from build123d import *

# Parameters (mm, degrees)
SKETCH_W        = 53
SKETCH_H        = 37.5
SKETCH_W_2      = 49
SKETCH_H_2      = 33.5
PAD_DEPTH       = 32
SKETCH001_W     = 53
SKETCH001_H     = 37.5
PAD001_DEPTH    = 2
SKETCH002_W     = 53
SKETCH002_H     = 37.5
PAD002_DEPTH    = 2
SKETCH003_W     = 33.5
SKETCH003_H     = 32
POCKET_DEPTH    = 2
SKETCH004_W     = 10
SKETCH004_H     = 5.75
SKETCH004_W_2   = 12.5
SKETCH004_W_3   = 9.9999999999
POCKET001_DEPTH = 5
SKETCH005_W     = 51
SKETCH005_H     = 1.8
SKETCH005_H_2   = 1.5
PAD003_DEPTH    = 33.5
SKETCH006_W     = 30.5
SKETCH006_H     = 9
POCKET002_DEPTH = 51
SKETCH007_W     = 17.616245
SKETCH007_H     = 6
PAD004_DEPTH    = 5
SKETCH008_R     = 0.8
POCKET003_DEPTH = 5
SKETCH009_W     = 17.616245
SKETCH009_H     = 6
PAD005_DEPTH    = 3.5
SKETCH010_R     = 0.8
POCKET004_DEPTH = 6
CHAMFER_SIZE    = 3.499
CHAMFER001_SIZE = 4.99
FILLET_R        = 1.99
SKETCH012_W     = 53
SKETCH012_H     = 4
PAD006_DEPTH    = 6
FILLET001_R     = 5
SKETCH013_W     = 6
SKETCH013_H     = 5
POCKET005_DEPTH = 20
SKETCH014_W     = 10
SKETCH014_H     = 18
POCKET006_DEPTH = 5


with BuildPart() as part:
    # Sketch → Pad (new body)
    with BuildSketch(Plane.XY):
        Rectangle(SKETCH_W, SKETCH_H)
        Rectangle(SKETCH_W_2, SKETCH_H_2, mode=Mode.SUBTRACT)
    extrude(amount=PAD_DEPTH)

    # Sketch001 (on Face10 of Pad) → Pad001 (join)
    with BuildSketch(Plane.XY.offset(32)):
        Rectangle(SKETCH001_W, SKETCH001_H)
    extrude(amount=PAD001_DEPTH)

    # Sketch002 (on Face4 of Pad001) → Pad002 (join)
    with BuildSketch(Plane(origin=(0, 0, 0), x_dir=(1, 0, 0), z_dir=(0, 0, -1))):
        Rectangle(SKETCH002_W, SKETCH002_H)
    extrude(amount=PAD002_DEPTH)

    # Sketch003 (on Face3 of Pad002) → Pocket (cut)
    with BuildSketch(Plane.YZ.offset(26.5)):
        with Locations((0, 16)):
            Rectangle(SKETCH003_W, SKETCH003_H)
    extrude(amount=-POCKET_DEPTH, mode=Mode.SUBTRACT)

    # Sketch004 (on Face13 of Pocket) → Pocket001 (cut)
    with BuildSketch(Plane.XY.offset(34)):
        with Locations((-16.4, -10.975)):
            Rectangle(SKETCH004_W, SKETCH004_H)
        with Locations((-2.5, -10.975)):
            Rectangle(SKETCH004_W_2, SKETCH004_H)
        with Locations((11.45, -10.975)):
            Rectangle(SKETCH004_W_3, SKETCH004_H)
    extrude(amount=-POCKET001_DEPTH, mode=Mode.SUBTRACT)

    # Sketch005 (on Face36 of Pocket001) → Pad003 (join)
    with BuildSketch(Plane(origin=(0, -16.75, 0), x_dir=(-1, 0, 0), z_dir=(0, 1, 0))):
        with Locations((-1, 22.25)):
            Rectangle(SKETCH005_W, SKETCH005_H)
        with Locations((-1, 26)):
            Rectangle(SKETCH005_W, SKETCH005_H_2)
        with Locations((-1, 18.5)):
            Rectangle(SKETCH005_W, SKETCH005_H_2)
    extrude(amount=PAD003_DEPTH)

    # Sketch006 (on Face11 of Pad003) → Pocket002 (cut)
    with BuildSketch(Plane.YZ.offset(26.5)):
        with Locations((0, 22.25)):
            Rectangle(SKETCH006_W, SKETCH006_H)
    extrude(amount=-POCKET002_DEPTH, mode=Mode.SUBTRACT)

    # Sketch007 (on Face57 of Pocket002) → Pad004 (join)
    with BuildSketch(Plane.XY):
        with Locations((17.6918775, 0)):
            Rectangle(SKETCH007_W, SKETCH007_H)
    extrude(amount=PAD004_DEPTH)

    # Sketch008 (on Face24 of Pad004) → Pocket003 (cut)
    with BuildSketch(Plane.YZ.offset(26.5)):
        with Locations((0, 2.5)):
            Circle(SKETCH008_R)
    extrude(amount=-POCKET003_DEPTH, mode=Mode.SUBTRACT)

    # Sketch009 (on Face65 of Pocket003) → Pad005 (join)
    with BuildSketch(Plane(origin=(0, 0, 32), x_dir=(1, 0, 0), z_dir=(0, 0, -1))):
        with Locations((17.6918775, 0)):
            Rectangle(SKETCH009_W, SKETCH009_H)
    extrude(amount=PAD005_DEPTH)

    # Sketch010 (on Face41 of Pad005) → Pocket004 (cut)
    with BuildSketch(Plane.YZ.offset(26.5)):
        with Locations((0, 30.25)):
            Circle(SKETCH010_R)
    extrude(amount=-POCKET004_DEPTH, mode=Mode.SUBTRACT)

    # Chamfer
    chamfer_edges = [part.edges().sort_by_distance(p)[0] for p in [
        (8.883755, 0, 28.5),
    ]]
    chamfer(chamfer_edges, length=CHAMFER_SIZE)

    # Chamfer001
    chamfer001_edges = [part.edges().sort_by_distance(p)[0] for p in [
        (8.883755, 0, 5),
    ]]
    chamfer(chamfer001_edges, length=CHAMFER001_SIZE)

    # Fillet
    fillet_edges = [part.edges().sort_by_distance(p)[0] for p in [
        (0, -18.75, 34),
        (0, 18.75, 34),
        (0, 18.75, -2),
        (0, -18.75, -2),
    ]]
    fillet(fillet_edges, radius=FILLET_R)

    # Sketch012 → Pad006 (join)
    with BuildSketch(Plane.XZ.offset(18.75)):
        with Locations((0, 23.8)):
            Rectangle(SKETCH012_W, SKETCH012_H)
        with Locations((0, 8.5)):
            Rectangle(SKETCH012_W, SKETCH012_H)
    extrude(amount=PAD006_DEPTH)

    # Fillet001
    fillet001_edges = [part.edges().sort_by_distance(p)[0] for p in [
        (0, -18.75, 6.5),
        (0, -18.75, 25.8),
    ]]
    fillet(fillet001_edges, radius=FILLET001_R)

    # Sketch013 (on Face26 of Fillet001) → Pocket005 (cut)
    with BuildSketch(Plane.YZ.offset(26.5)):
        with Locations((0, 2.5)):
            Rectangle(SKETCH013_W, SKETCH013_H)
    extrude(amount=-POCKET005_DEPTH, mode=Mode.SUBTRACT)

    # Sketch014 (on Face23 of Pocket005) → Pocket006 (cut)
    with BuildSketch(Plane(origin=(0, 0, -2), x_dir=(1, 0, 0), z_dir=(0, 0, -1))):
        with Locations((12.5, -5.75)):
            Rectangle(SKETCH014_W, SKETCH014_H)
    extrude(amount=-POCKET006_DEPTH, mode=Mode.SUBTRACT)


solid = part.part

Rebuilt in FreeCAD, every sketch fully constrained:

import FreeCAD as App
import Part
import Sketcher
from FreeCAD import Vector


def edges_at(feature, points):
    """Names of the edges that pass closest to the given points."""
    edges = feature.Shape.Edges
    near = lambda p: min(range(len(edges)), key=lambda i: edges[i].distToShape(Part.Vertex(*p))[0])
    return sorted({f"Edge{near(p) + 1}" for p in points})

doc = App.newDocument("Part")
body = doc.addObject("PartDesign::Body", "Body")

# Sketch on XY plane
sketch1 = body.newObject("Sketcher::SketchObject", "Sketch")
sketch1.AttachmentSupport = (doc.getObject("XY_Plane"), [""])
sketch1.MapMode = "FlatFace"
sketch1.addGeometry([
    Part.LineSegment(Vector(-26, 19, 0), Vector(-26, -19, 0)),  # 0
    Part.LineSegment(Vector(-26, -19, 0), Vector(26, -19, 0)),  # 1
    Part.LineSegment(Vector(26, -19, 0), Vector(26, 19, 0)),  # 2
    Part.LineSegment(Vector(26, 19, 0), Vector(-26, 19, 0)),  # 3
    Part.LineSegment(Vector(24, -17, 0), Vector(-24, -17, 0)),  # 4
    Part.LineSegment(Vector(-24, -17, 0), Vector(-24, 17, 0)),  # 5
    Part.LineSegment(Vector(-24, 17, 0), Vector(24, 17, 0)),  # 6
    Part.LineSegment(Vector(24, 17, 0), Vector(24, -17, 0)),  # 7
], False)
sketch1.addConstraint([
    Sketcher.Constraint("Coincident", 0, 2, 1, 1),
    Sketcher.Constraint("Coincident", 1, 2, 2, 1),
    Sketcher.Constraint("Coincident", 2, 2, 3, 1),
    Sketcher.Constraint("Coincident", 3, 2, 0, 1),
    Sketcher.Constraint("Coincident", 4, 2, 5, 1),
    Sketcher.Constraint("Coincident", 5, 2, 6, 1),
    Sketcher.Constraint("Coincident", 6, 2, 7, 1),
    Sketcher.Constraint("Coincident", 7, 2, 4, 1),
    Sketcher.Constraint("Vertical", 0),
    Sketcher.Constraint("Horizontal", 1),
    Sketcher.Constraint("Vertical", 2),
    Sketcher.Constraint("Horizontal", 3),
    Sketcher.Constraint("Horizontal", 4),
    Sketcher.Constraint("Vertical", 5),
    Sketcher.Constraint("Horizontal", 6),
    Sketcher.Constraint("Vertical", 7),
    Sketcher.Constraint("Symmetric", 0, 2, 2, 2, -1, 1),
    Sketcher.Constraint("Symmetric", 4, 2, 6, 2, -1, 1),
    Sketcher.Constraint("DistanceX", 1, 1, 1, 2, 53.0),
    Sketcher.Constraint("DistanceX", 4, 2, 4, 1, 49.0),
    Sketcher.Constraint("DistanceY", 0, 2, 0, 1, 37.5),
    Sketcher.Constraint("DistanceY", 5, 1, 5, 2, 33.5),
])
pad1 = body.newObject("PartDesign::Pad", "Pad")
pad1.Profile = sketch1
pad1.Length = 32

# Sketch on XY plane
sketch2 = body.newObject("Sketcher::SketchObject", "Sketch001")
sketch2.AttachmentSupport = (doc.getObject("XY_Plane"), [""])
sketch2.MapMode = "FlatFace"
sketch2.AttachmentOffset = App.Placement(Vector(0, 0, 32), App.Rotation())
sketch2.addGeometry([
    Part.LineSegment(Vector(-26, 19, 0), Vector(-26, -19, 0)),
    Part.LineSegment(Vector(-26, -19, 0), Vector(26, -19, 0)),
    Part.LineSegment(Vector(26, -19, 0), Vector(26, 19, 0)),
    Part.LineSegment(Vector(26, 19, 0), Vector(-26, 19, 0)),
], False)
sketch2.addConstraint([
    Sketcher.Constraint("Coincident", 0, 2, 1, 1),
    Sketcher.Constraint("Coincident", 1, 2, 2, 1),
    Sketcher.Constraint("Coincident", 2, 2, 3, 1),
    Sketcher.Constraint("Coincident", 3, 2, 0, 1),
    Sketcher.Constraint("Vertical", 0),
    Sketcher.Constraint("Horizontal", 1),
    Sketcher.Constraint("Vertical", 2),
    Sketcher.Constraint("Horizontal", 3),
    Sketcher.Constraint("Symmetric", 0, 2, 2, 2, -1, 1),
    Sketcher.Constraint("DistanceX", 1, 1, 1, 2, 53.0),
    Sketcher.Constraint("DistanceY", 0, 2, 0, 1, 37.5),
])
pad2 = body.newObject("PartDesign::Pad", "Pad001")
pad2.Profile = sketch2
pad2.Length = 2

# Sketch on XY plane
sketch3 = body.newObject("Sketcher::SketchObject", "Sketch002")
sketch3.AttachmentSupport = (doc.getObject("XY_Plane"), [""])
sketch3.MapMode = "FlatFace"
sketch3.addGeometry([
    Part.LineSegment(Vector(-26, -19, 0), Vector(-26, 19, 0)),
    Part.LineSegment(Vector(-26, 19, 0), Vector(26, 19, 0)),
    Part.LineSegment(Vector(26, 19, 0), Vector(26, -19, 0)),
    Part.LineSegment(Vector(26, -19, 0), Vector(-26, -19, 0)),
], False)
sketch3.addConstraint([
    Sketcher.Constraint("Coincident", 0, 2, 1, 1),
    Sketcher.Constraint("Coincident", 1, 2, 2, 1),
    Sketcher.Constraint("Coincident", 2, 2, 3, 1),
    Sketcher.Constraint("Coincident", 3, 2, 0, 1),
    Sketcher.Constraint("Vertical", 0),
    Sketcher.Constraint("Horizontal", 1),
    Sketcher.Constraint("Vertical", 2),
    Sketcher.Constraint("Horizontal", 3),
    Sketcher.Constraint("Symmetric", 0, 2, 2, 2, -1, 1),
    Sketcher.Constraint("DistanceX", 1, 1, 1, 2, 53.0),
    Sketcher.Constraint("DistanceY", 0, 1, 0, 2, 37.5),
])
pad3 = body.newObject("PartDesign::Pad", "Pad002")
pad3.Profile = sketch3
pad3.Length = 2
pad3.Reversed = True

# Sketch on YZ plane
sketch4 = body.newObject("Sketcher::SketchObject", "Sketch003")
sketch4.AttachmentSupport = (doc.getObject("YZ_Plane"), [""])
sketch4.MapMode = "FlatFace"
sketch4.AttachmentOffset = App.Placement(Vector(0, 0, 26.5), App.Rotation())
sketch4.addGeometry([
    Part.LineSegment(Vector(-17, 32, 0), Vector(-17, 0, 0)),
    Part.LineSegment(Vector(-17, 0, 0), Vector(17, 0, 0)),
    Part.LineSegment(Vector(17, 0, 0), Vector(17, 32, 0)),
    Part.LineSegment(Vector(17, 32, 0), Vector(-17, 32, 0)),
], False)
sketch4.addConstraint([
    Sketcher.Constraint("Coincident", 0, 2, 1, 1),
    Sketcher.Constraint("Coincident", 1, 2, 2, 1),
    Sketcher.Constraint("Coincident", 2, 2, 3, 1),
    Sketcher.Constraint("Coincident", 3, 2, 0, 1),
    Sketcher.Constraint("Vertical", 0),
    Sketcher.Constraint("Horizontal", 1),
    Sketcher.Constraint("Vertical", 2),
    Sketcher.Constraint("Horizontal", 3),
    Sketcher.Constraint("Symmetric", 0, 2, 1, 2, -1, 1),
    Sketcher.Constraint("DistanceY", 0, 2, 0, 1, 32.0),
    Sketcher.Constraint("DistanceX", 1, 1, 1, 2, 33.5),
])
pocket1 = body.newObject("PartDesign::Pocket", "Pocket")
pocket1.Profile = sketch4
pocket1.Length = 2

# Sketch on XY plane
sketch5 = body.newObject("Sketcher::SketchObject", "Sketch004")
sketch5.AttachmentSupport = (doc.getObject("XY_Plane"), [""])
sketch5.MapMode = "FlatFace"
sketch5.AttachmentOffset = App.Placement(Vector(0, 0, 34), App.Rotation())
sketch5.addGeometry([
    Part.LineSegment(Vector(-21, -8, 0), Vector(-21, -14, 0)),  # 0
    Part.LineSegment(Vector(-21, -14, 0), Vector(-11, -14, 0)),  # 1
    Part.LineSegment(Vector(-11, -14, 0), Vector(-11, -8, 0)),  # 2
    Part.LineSegment(Vector(-11, -8, 0), Vector(-21, -8, 0)),  # 3
    Part.LineSegment(Vector(-9, -8, 0), Vector(-9, -14, 0)),  # 4
    Part.LineSegment(Vector(-9, -14, 0), Vector(4, -14, 0)),  # 5
    Part.LineSegment(Vector(4, -14, 0), Vector(4, -8, 0)),  # 6
    Part.LineSegment(Vector(4, -8, 0), Vector(-9, -8, 0)),  # 7
    Part.LineSegment(Vector(6, -8, 0), Vector(6, -14, 0)),  # 8
    Part.LineSegment(Vector(6, -14, 0), Vector(16, -14, 0)),  # 9
    Part.LineSegment(Vector(16, -14, 0), Vector(16, -8, 0)),  # 10
    Part.LineSegment(Vector(16, -8, 0), Vector(6, -8, 0)),  # 11
], False)
sketch5.addConstraint([
    Sketcher.Constraint("Coincident", 0, 2, 1, 1),
    Sketcher.Constraint("Coincident", 1, 2, 2, 1),
    Sketcher.Constraint("Coincident", 2, 2, 3, 1),
    Sketcher.Constraint("Coincident", 3, 2, 0, 1),
    Sketcher.Constraint("Coincident", 4, 2, 5, 1),
    Sketcher.Constraint("Coincident", 5, 2, 6, 1),
    Sketcher.Constraint("Coincident", 6, 2, 7, 1),
    Sketcher.Constraint("Coincident", 7, 2, 4, 1),
    Sketcher.Constraint("Coincident", 8, 2, 9, 1),
    Sketcher.Constraint("Coincident", 9, 2, 10, 1),
    Sketcher.Constraint("Coincident", 10, 2, 11, 1),
    Sketcher.Constraint("Coincident", 11, 2, 8, 1),
    Sketcher.Constraint("Vertical", 0),
    Sketcher.Constraint("Horizontal", 1),
    Sketcher.Constraint("Vertical", 2),
    Sketcher.Constraint("Horizontal", 3),
    Sketcher.Constraint("Vertical", 4),
    Sketcher.Constraint("Horizontal", 5),
    Sketcher.Constraint("Vertical", 6),
    Sketcher.Constraint("Horizontal", 7),
    Sketcher.Constraint("Vertical", 8),
    Sketcher.Constraint("Horizontal", 9),
    Sketcher.Constraint("Vertical", 10),
    Sketcher.Constraint("Horizontal", 11),
    Sketcher.Constraint("Horizontal", 1, 2, 4, 2),
    Sketcher.Constraint("Horizontal", 3, 2, 6, 2),
    Sketcher.Constraint("Horizontal", 5, 2, 8, 2),
    Sketcher.Constraint("Horizontal", 7, 2, 10, 2),
    Sketcher.Constraint("Equal", 3, 9),
    Sketcher.Constraint("DistanceX", 1, 1, 1, 2, 10.0),
    Sketcher.Constraint("DistanceX", 5, 1, 5, 2, 12.5),
    Sketcher.Constraint("DistanceY", 0, 2, 0, 1, 5.75),
    Sketcher.Constraint("DistanceX", 0, 2, -1, 1, 21.4),
    Sketcher.Constraint("DistanceY", 2, 2, -1, 1, 8.1),
    Sketcher.Constraint("DistanceX", 5, 2, 8, 2, 2.7),
    Sketcher.Constraint("DistanceX", 4, 2, -1, 1, 8.75),
])
pocket2 = body.newObject("PartDesign::Pocket", "Pocket001")
pocket2.Profile = sketch5
pocket2.Length = 5

# Sketch on XZ plane
sketch6 = body.newObject("Sketcher::SketchObject", "Sketch005")
sketch6.AttachmentSupport = (doc.getObject("XZ_Plane"), [""])
sketch6.MapMode = "FlatFace"
sketch6.AttachmentOffset = App.Placement(Vector(0, 0, 16.75), App.Rotation())
sketch6.addGeometry([
    Part.LineSegment(Vector(26.5, 23.1, 0), Vector(26.5, 21.4, 0)),  # 0
    Part.LineSegment(Vector(26.5, 21.4, 0), Vector(-24.5, 21.4, 0)),  # 1
    Part.LineSegment(Vector(-24.5, 21.4, 0), Vector(-24.5, 23.1, 0)),  # 2
    Part.LineSegment(Vector(-24.5, 23.1, 0), Vector(26.5, 23.1, 0)),  # 3
    Part.LineSegment(Vector(26.5, 26.8, 0), Vector(26.5, 25.2, 0)),  # 4
    Part.LineSegment(Vector(26.5, 25.2, 0), Vector(-24.5, 25.2, 0)),  # 5
    Part.LineSegment(Vector(-24.5, 25.2, 0), Vector(-24.5, 26.8, 0)),  # 6
    Part.LineSegment(Vector(-24.5, 26.8, 0), Vector(26.5, 26.8, 0)),  # 7
    Part.LineSegment(Vector(26.5, 19.2, 0), Vector(26.5, 17.8, 0)),  # 8
    Part.LineSegment(Vector(26.5, 17.8, 0), Vector(-24.5, 17.8, 0)),  # 9
    Part.LineSegment(Vector(-24.5, 17.8, 0), Vector(-24.5, 19.2, 0)),  # 10
    Part.LineSegment(Vector(-24.5, 19.2, 0), Vector(26.5, 19.2, 0)),  # 11
], False)
sketch6.addConstraint([
    Sketcher.Constraint("Coincident", 0, 2, 1, 1),
    Sketcher.Constraint("Coincident", 1, 2, 2, 1),
    Sketcher.Constraint("Coincident", 2, 2, 3, 1),
    Sketcher.Constraint("Coincident", 3, 2, 0, 1),
    Sketcher.Constraint("Coincident", 4, 2, 5, 1),
    Sketcher.Constraint("Coincident", 5, 2, 6, 1),
    Sketcher.Constraint("Coincident", 6, 2, 7, 1),
    Sketcher.Constraint("Coincident", 7, 2, 4, 1),
    Sketcher.Constraint("Coincident", 8, 2, 9, 1),
    Sketcher.Constraint("Coincident", 9, 2, 10, 1),
    Sketcher.Constraint("Coincident", 10, 2, 11, 1),
    Sketcher.Constraint("Coincident", 11, 2, 8, 1),
    Sketcher.Constraint("Vertical", 0),
    Sketcher.Constraint("Horizontal", 1),
    Sketcher.Constraint("Vertical", 2),
    Sketcher.Constraint("Horizontal", 3),
    Sketcher.Constraint("Vertical", 4),
    Sketcher.Constraint("Horizontal", 5),
    Sketcher.Constraint("Vertical", 6),
    Sketcher.Constraint("Horizontal", 7),
    Sketcher.Constraint("Vertical", 8),
    Sketcher.Constraint("Horizontal", 9),
    Sketcher.Constraint("Vertical", 10),
    Sketcher.Constraint("Horizontal", 11),
    Sketcher.Constraint("Vertical", 3, 2, 4, 2),
    Sketcher.Constraint("Vertical", 2, 2, 5, 2),
    Sketcher.Constraint("Vertical", 7, 2, 8, 2),
    Sketcher.Constraint("Vertical", 6, 2, 9, 2),
    Sketcher.Constraint("Equal", 6, 8),
    Sketcher.Constraint("DistanceX", 1, 2, 1, 1, 51.0),
    Sketcher.Constraint("DistanceY", 0, 2, 0, 1, 1.8),
    Sketcher.Constraint("DistanceY", 4, 2, 4, 1, 1.5),
    Sketcher.Constraint("DistanceY", 8, 2, 7, 2, 9.0),
    Sketcher.Constraint("DistanceX", -1, 1, 0, 2, 26.5),
    Sketcher.Constraint("DistanceY", 3, 2, 4, 2, 2.1),
    Sketcher.Constraint("DistanceY", -1, 1, 0, 2, 21.35),
])
pad4 = body.newObject("PartDesign::Pad", "Pad003")
pad4.Profile = sketch6
pad4.Length = 33.5
pad4.Reversed = True

# Sketch on YZ plane
sketch7 = body.newObject("Sketcher::SketchObject", "Sketch006")
sketch7.AttachmentSupport = (doc.getObject("YZ_Plane"), [""])
sketch7.MapMode = "FlatFace"
sketch7.AttachmentOffset = App.Placement(Vector(0, 0, 26.5), App.Rotation())
sketch7.addGeometry([
    Part.LineSegment(Vector(-15, 27, 0), Vector(-15, 18, 0)),
    Part.LineSegment(Vector(-15, 18, 0), Vector(15, 18, 0)),
    Part.LineSegment(Vector(15, 18, 0), Vector(15, 27, 0)),
    Part.LineSegment(Vector(15, 27, 0), Vector(-15, 27, 0)),
], False)
sketch7.addConstraint([
    Sketcher.Constraint("Coincident", 0, 2, 1, 1),
    Sketcher.Constraint("Coincident", 1, 2, 2, 1),
    Sketcher.Constraint("Coincident", 2, 2, 3, 1),
    Sketcher.Constraint("Coincident", 3, 2, 0, 1),
    Sketcher.Constraint("Vertical", 0),
    Sketcher.Constraint("Horizontal", 1),
    Sketcher.Constraint("Vertical", 2),
    Sketcher.Constraint("Horizontal", 3),
    Sketcher.Constraint("DistanceY", 0, 2, 0, 1, 9.0),
    Sketcher.Constraint("DistanceX", 1, 1, 1, 2, 30.5),
    Sketcher.Constraint("DistanceX", 0, 2, -1, 1, 15.25),
    Sketcher.Constraint("DistanceY", -1, 1, 0, 2, 17.75),
])
pocket3 = body.newObject("PartDesign::Pocket", "Pocket002")
pocket3.Profile = sketch7
pocket3.Length = 51

# Sketch on XY plane
sketch8 = body.newObject("Sketcher::SketchObject", "Sketch007")
sketch8.AttachmentSupport = (doc.getObject("XY_Plane"), [""])
sketch8.MapMode = "FlatFace"
sketch8.addGeometry([
    Part.LineSegment(Vector(9, 3, 0), Vector(9, -3, 0)),
    Part.LineSegment(Vector(9, -3, 0), Vector(26, -3, 0)),
    Part.LineSegment(Vector(26, -3, 0), Vector(26, 3, 0)),
    Part.LineSegment(Vector(26, 3, 0), Vector(9, 3, 0)),
], False)
sketch8.addConstraint([
    Sketcher.Constraint("Coincident", 0, 2, 1, 1),
    Sketcher.Constraint("Coincident", 1, 2, 2, 1),
    Sketcher.Constraint("Coincident", 2, 2, 3, 1),
    Sketcher.Constraint("Coincident", 3, 2, 0, 1),
    Sketcher.Constraint("Vertical", 0),
    Sketcher.Constraint("Horizontal", 1),
    Sketcher.Constraint("Vertical", 2),
    Sketcher.Constraint("Horizontal", 3),
    Sketcher.Constraint("DistanceY", 0, 2, 0, 1, 6.0),
    Sketcher.Constraint("DistanceY", 0, 2, -1, 1, 3.0),
    Sketcher.Constraint("DistanceX", -1, 1, 1, 2, 26.5),
    Sketcher.Constraint("DistanceX", 1, 1, 1, 2, 17.616245),
])
pad5 = body.newObject("PartDesign::Pad", "Pad004")
pad5.Profile = sketch8
pad5.Length = 5

# Sketch on YZ plane
sketch9 = body.newObject("Sketcher::SketchObject", "Sketch008")
sketch9.AttachmentSupport = (doc.getObject("YZ_Plane"), [""])
sketch9.MapMode = "FlatFace"
sketch9.AttachmentOffset = App.Placement(Vector(0, 0, 26.5), App.Rotation())
sketch9.addGeometry(Part.Circle(Vector(0, 2.5, 0), Vector(0, 0, 1), 0.8), False)
sketch9.addConstraint([
    Sketcher.Constraint("PointOnObject", 0, 3, -2),
    Sketcher.Constraint("Diameter", 0, 1.6),
    Sketcher.Constraint("DistanceY", -1, 1, 0, 3, 2.5),
])
pocket4 = body.newObject("PartDesign::Pocket", "Pocket003")
pocket4.Profile = sketch9
pocket4.Length = 5

# Sketch on XY plane
sketch10 = body.newObject("Sketcher::SketchObject", "Sketch009")
sketch10.AttachmentSupport = (doc.getObject("XY_Plane"), [""])
sketch10.MapMode = "FlatFace"
sketch10.AttachmentOffset = App.Placement(Vector(0, 0, 32), App.Rotation())
sketch10.addGeometry([
    Part.LineSegment(Vector(9, -3, 0), Vector(9, 3, 0)),
    Part.LineSegment(Vector(9, 3, 0), Vector(26, 3, 0)),
    Part.LineSegment(Vector(26, 3, 0), Vector(26, -3, 0)),
    Part.LineSegment(Vector(26, -3, 0), Vector(9, -3, 0)),
], False)
sketch10.addConstraint([
    Sketcher.Constraint("Coincident", 0, 2, 1, 1),
    Sketcher.Constraint("Coincident", 1, 2, 2, 1),
    Sketcher.Constraint("Coincident", 2, 2, 3, 1),
    Sketcher.Constraint("Coincident", 3, 2, 0, 1),
    Sketcher.Constraint("Vertical", 0),
    Sketcher.Constraint("Horizontal", 1),
    Sketcher.Constraint("Vertical", 2),
    Sketcher.Constraint("Horizontal", 3),
    Sketcher.Constraint("DistanceY", 0, 1, 0, 2, 6.0),
    Sketcher.Constraint("DistanceY", -1, 1, 0, 2, 3.0),
    Sketcher.Constraint("DistanceX", -1, 1, 1, 2, 26.5),
    Sketcher.Constraint("DistanceX", 1, 1, 1, 2, 17.616245),
])
pad6 = body.newObject("PartDesign::Pad", "Pad005")
pad6.Profile = sketch10
pad6.Length = 3.5
pad6.Reversed = True

# Sketch on YZ plane
sketch11 = body.newObject("Sketcher::SketchObject", "Sketch010")
sketch11.AttachmentSupport = (doc.getObject("YZ_Plane"), [""])
sketch11.MapMode = "FlatFace"
sketch11.AttachmentOffset = App.Placement(Vector(0, 0, 26.5), App.Rotation())
sketch11.addGeometry(Part.Circle(Vector(0, 30.2, 0), Vector(0, 0, 1), 0.8), False)
sketch11.addConstraint([
    Sketcher.Constraint("PointOnObject", 0, 3, -2),
    Sketcher.Constraint("Diameter", 0, 1.6),
    Sketcher.Constraint("DistanceY", -1, 1, 0, 3, 30.25),
])
pocket5 = body.newObject("PartDesign::Pocket", "Pocket004")
pocket5.Profile = sketch11
pocket5.Length = 6
doc.recompute()

chamfer = body.newObject("PartDesign::Chamfer", "Chamfer")
chamfer.Base = (pocket5, edges_at(pocket5, [(8.884, 0, 28.5)]))
chamfer.Size = 3.499
doc.recompute()

chamfer2 = body.newObject("PartDesign::Chamfer", "Chamfer001")
chamfer2.Base = (chamfer, edges_at(chamfer, [(8.884, 0, 5)]))
chamfer2.Size = 4.99
doc.recompute()

fillet = body.newObject("PartDesign::Fillet", "Fillet")
fillet.Base = (chamfer2, edges_at(chamfer2, [
    (0, -18.75, 34),
    (0, 18.75, 34),
    (0, 18.75, -2),
    (0, -18.75, -2),
]))
fillet.Radius = 1.99

# Sketch on XZ plane
sketch12 = body.newObject("Sketcher::SketchObject", "Sketch011")
sketch12.AttachmentSupport = (doc.getObject("XZ_Plane"), [""])
sketch12.MapMode = "FlatFace"
sketch12.AttachmentOffset = App.Placement(Vector(0, 0, 18.75), App.Rotation())
sketch12.addGeometry([
    Part.LineSegment(Vector(-26.5, 25.8, 0), Vector(-26.5, 21.8, 0)),  # 0
    Part.LineSegment(Vector(-26.5, 21.8, 0), Vector(26.5, 21.8, 0)),  # 1
    Part.LineSegment(Vector(26.5, 21.8, 0), Vector(26.5, 25.8, 0)),  # 2
    Part.LineSegment(Vector(26.5, 25.8, 0), Vector(-26.5, 25.8, 0)),  # 3
    Part.LineSegment(Vector(-26.5, 10.5, 0), Vector(-26.5, 6.5, 0)),  # 4
    Part.LineSegment(Vector(-26.5, 6.5, 0), Vector(26.5, 6.5, 0)),  # 5
    Part.LineSegment(Vector(26.5, 6.5, 0), Vector(26.5, 10.5, 0)),  # 6
    Part.LineSegment(Vector(26.5, 10.5, 0), Vector(-26.5, 10.5, 0)),  # 7
], False)
sketch12.addConstraint([
    Sketcher.Constraint("Coincident", 0, 2, 1, 1),
    Sketcher.Constraint("Coincident", 1, 2, 2, 1),
    Sketcher.Constraint("Coincident", 2, 2, 3, 1),
    Sketcher.Constraint("Coincident", 3, 2, 0, 1),
    Sketcher.Constraint("Coincident", 4, 2, 5, 1),
    Sketcher.Constraint("Coincident", 5, 2, 6, 1),
    Sketcher.Constraint("Coincident", 6, 2, 7, 1),
    Sketcher.Constraint("Coincident", 7, 2, 4, 1),
    Sketcher.Constraint("Vertical", 0),
    Sketcher.Constraint("Horizontal", 1),
    Sketcher.Constraint("Vertical", 2),
    Sketcher.Constraint("Horizontal", 3),
    Sketcher.Constraint("Vertical", 4),
    Sketcher.Constraint("Horizontal", 5),
    Sketcher.Constraint("Vertical", 6),
    Sketcher.Constraint("Horizontal", 7),
    Sketcher.Constraint("Vertical", 3, 2, 4, 2),
    Sketcher.Constraint("Vertical", 2, 2, 5, 2),
    Sketcher.Constraint("Equal", 2, 4),
    Sketcher.Constraint("DistanceX", 1, 1, 1, 2, 53.0),
    Sketcher.Constraint("DistanceY", 0, 2, 0, 1, 4.0),
    Sketcher.Constraint("DistanceX", 0, 2, -1, 1, 26.5),
    Sketcher.Constraint("DistanceY", -1, 1, 0, 2, 21.8),
    Sketcher.Constraint("DistanceY", -1, 1, 4, 2, 6.5),
])
pad7 = body.newObject("PartDesign::Pad", "Pad006")
pad7.Profile = sketch12
pad7.Length = 6
doc.recompute()

fillet2 = body.newObject("PartDesign::Fillet", "Fillet001")
fillet2.Base = (pad7, edges_at(pad7, [(0, -18.75, 6.5), (0, -18.75, 25.8)]))
fillet2.Radius = 5

# Sketch on YZ plane
sketch13 = body.newObject("Sketcher::SketchObject", "Sketch012")
sketch13.AttachmentSupport = (doc.getObject("YZ_Plane"), [""])
sketch13.MapMode = "FlatFace"
sketch13.AttachmentOffset = App.Placement(Vector(0, 0, 26.5), App.Rotation())
sketch13.addGeometry([
    Part.LineSegment(Vector(-3, 5, 0), Vector(-3, 0, 0)),
    Part.LineSegment(Vector(-3, 0, 0), Vector(3, 0, 0)),
    Part.LineSegment(Vector(3, 0, 0), Vector(3, 5, 0)),
    Part.LineSegment(Vector(3, 5, 0), Vector(-3, 5, 0)),
], False)
sketch13.addConstraint([
    Sketcher.Constraint("Coincident", 0, 2, 1, 1),
    Sketcher.Constraint("Coincident", 1, 2, 2, 1),
    Sketcher.Constraint("Coincident", 2, 2, 3, 1),
    Sketcher.Constraint("Coincident", 3, 2, 0, 1),
    Sketcher.Constraint("Vertical", 0),
    Sketcher.Constraint("Horizontal", 1),
    Sketcher.Constraint("Vertical", 2),
    Sketcher.Constraint("Horizontal", 3),
    Sketcher.Constraint("Symmetric", 0, 2, 1, 2, -1, 1),
    Sketcher.Constraint("DistanceX", 1, 1, 1, 2, 6.0),
    Sketcher.Constraint("DistanceY", 0, 2, 0, 1, 5.0),
])
pocket6 = body.newObject("PartDesign::Pocket", "Pocket005")
pocket6.Profile = sketch13
pocket6.Length = 20

# Sketch on XY plane
sketch14 = body.newObject("Sketcher::SketchObject", "Sketch013")
sketch14.AttachmentSupport = (doc.getObject("XY_Plane"), [""])
sketch14.MapMode = "FlatFace"
sketch14.AttachmentOffset = App.Placement(Vector(0, 0, -2), App.Rotation())
sketch14.addGeometry([
    Part.LineSegment(Vector(8, -3, 0), Vector(8, 15, 0)),
    Part.LineSegment(Vector(8, 15, 0), Vector(18, 15, 0)),
    Part.LineSegment(Vector(18, 15, 0), Vector(18, -3, 0)),
    Part.LineSegment(Vector(18, -3, 0), Vector(8, -3, 0)),
], False)
sketch14.addConstraint([
    Sketcher.Constraint("Coincident", 0, 2, 1, 1),
    Sketcher.Constraint("Coincident", 1, 2, 2, 1),
    Sketcher.Constraint("Coincident", 2, 2, 3, 1),
    Sketcher.Constraint("Coincident", 3, 2, 0, 1),
    Sketcher.Constraint("Vertical", 0),
    Sketcher.Constraint("Horizontal", 1),
    Sketcher.Constraint("Vertical", 2),
    Sketcher.Constraint("Horizontal", 3),
    Sketcher.Constraint("DistanceX", 1, 1, 1, 2, 10.0),
    Sketcher.Constraint("DistanceY", 0, 1, 0, 2, 18.0),
    Sketcher.Constraint("DistanceX", -1, 1, 0, 2, 7.5),
    Sketcher.Constraint("DistanceY", -1, 1, 0, 2, 14.75),
])
pocket7 = body.newObject("PartDesign::Pocket", "Pocket006")
pocket7.Profile = sketch14
pocket7.Length = 5
pocket7.Reversed = True

doc.recompute()
